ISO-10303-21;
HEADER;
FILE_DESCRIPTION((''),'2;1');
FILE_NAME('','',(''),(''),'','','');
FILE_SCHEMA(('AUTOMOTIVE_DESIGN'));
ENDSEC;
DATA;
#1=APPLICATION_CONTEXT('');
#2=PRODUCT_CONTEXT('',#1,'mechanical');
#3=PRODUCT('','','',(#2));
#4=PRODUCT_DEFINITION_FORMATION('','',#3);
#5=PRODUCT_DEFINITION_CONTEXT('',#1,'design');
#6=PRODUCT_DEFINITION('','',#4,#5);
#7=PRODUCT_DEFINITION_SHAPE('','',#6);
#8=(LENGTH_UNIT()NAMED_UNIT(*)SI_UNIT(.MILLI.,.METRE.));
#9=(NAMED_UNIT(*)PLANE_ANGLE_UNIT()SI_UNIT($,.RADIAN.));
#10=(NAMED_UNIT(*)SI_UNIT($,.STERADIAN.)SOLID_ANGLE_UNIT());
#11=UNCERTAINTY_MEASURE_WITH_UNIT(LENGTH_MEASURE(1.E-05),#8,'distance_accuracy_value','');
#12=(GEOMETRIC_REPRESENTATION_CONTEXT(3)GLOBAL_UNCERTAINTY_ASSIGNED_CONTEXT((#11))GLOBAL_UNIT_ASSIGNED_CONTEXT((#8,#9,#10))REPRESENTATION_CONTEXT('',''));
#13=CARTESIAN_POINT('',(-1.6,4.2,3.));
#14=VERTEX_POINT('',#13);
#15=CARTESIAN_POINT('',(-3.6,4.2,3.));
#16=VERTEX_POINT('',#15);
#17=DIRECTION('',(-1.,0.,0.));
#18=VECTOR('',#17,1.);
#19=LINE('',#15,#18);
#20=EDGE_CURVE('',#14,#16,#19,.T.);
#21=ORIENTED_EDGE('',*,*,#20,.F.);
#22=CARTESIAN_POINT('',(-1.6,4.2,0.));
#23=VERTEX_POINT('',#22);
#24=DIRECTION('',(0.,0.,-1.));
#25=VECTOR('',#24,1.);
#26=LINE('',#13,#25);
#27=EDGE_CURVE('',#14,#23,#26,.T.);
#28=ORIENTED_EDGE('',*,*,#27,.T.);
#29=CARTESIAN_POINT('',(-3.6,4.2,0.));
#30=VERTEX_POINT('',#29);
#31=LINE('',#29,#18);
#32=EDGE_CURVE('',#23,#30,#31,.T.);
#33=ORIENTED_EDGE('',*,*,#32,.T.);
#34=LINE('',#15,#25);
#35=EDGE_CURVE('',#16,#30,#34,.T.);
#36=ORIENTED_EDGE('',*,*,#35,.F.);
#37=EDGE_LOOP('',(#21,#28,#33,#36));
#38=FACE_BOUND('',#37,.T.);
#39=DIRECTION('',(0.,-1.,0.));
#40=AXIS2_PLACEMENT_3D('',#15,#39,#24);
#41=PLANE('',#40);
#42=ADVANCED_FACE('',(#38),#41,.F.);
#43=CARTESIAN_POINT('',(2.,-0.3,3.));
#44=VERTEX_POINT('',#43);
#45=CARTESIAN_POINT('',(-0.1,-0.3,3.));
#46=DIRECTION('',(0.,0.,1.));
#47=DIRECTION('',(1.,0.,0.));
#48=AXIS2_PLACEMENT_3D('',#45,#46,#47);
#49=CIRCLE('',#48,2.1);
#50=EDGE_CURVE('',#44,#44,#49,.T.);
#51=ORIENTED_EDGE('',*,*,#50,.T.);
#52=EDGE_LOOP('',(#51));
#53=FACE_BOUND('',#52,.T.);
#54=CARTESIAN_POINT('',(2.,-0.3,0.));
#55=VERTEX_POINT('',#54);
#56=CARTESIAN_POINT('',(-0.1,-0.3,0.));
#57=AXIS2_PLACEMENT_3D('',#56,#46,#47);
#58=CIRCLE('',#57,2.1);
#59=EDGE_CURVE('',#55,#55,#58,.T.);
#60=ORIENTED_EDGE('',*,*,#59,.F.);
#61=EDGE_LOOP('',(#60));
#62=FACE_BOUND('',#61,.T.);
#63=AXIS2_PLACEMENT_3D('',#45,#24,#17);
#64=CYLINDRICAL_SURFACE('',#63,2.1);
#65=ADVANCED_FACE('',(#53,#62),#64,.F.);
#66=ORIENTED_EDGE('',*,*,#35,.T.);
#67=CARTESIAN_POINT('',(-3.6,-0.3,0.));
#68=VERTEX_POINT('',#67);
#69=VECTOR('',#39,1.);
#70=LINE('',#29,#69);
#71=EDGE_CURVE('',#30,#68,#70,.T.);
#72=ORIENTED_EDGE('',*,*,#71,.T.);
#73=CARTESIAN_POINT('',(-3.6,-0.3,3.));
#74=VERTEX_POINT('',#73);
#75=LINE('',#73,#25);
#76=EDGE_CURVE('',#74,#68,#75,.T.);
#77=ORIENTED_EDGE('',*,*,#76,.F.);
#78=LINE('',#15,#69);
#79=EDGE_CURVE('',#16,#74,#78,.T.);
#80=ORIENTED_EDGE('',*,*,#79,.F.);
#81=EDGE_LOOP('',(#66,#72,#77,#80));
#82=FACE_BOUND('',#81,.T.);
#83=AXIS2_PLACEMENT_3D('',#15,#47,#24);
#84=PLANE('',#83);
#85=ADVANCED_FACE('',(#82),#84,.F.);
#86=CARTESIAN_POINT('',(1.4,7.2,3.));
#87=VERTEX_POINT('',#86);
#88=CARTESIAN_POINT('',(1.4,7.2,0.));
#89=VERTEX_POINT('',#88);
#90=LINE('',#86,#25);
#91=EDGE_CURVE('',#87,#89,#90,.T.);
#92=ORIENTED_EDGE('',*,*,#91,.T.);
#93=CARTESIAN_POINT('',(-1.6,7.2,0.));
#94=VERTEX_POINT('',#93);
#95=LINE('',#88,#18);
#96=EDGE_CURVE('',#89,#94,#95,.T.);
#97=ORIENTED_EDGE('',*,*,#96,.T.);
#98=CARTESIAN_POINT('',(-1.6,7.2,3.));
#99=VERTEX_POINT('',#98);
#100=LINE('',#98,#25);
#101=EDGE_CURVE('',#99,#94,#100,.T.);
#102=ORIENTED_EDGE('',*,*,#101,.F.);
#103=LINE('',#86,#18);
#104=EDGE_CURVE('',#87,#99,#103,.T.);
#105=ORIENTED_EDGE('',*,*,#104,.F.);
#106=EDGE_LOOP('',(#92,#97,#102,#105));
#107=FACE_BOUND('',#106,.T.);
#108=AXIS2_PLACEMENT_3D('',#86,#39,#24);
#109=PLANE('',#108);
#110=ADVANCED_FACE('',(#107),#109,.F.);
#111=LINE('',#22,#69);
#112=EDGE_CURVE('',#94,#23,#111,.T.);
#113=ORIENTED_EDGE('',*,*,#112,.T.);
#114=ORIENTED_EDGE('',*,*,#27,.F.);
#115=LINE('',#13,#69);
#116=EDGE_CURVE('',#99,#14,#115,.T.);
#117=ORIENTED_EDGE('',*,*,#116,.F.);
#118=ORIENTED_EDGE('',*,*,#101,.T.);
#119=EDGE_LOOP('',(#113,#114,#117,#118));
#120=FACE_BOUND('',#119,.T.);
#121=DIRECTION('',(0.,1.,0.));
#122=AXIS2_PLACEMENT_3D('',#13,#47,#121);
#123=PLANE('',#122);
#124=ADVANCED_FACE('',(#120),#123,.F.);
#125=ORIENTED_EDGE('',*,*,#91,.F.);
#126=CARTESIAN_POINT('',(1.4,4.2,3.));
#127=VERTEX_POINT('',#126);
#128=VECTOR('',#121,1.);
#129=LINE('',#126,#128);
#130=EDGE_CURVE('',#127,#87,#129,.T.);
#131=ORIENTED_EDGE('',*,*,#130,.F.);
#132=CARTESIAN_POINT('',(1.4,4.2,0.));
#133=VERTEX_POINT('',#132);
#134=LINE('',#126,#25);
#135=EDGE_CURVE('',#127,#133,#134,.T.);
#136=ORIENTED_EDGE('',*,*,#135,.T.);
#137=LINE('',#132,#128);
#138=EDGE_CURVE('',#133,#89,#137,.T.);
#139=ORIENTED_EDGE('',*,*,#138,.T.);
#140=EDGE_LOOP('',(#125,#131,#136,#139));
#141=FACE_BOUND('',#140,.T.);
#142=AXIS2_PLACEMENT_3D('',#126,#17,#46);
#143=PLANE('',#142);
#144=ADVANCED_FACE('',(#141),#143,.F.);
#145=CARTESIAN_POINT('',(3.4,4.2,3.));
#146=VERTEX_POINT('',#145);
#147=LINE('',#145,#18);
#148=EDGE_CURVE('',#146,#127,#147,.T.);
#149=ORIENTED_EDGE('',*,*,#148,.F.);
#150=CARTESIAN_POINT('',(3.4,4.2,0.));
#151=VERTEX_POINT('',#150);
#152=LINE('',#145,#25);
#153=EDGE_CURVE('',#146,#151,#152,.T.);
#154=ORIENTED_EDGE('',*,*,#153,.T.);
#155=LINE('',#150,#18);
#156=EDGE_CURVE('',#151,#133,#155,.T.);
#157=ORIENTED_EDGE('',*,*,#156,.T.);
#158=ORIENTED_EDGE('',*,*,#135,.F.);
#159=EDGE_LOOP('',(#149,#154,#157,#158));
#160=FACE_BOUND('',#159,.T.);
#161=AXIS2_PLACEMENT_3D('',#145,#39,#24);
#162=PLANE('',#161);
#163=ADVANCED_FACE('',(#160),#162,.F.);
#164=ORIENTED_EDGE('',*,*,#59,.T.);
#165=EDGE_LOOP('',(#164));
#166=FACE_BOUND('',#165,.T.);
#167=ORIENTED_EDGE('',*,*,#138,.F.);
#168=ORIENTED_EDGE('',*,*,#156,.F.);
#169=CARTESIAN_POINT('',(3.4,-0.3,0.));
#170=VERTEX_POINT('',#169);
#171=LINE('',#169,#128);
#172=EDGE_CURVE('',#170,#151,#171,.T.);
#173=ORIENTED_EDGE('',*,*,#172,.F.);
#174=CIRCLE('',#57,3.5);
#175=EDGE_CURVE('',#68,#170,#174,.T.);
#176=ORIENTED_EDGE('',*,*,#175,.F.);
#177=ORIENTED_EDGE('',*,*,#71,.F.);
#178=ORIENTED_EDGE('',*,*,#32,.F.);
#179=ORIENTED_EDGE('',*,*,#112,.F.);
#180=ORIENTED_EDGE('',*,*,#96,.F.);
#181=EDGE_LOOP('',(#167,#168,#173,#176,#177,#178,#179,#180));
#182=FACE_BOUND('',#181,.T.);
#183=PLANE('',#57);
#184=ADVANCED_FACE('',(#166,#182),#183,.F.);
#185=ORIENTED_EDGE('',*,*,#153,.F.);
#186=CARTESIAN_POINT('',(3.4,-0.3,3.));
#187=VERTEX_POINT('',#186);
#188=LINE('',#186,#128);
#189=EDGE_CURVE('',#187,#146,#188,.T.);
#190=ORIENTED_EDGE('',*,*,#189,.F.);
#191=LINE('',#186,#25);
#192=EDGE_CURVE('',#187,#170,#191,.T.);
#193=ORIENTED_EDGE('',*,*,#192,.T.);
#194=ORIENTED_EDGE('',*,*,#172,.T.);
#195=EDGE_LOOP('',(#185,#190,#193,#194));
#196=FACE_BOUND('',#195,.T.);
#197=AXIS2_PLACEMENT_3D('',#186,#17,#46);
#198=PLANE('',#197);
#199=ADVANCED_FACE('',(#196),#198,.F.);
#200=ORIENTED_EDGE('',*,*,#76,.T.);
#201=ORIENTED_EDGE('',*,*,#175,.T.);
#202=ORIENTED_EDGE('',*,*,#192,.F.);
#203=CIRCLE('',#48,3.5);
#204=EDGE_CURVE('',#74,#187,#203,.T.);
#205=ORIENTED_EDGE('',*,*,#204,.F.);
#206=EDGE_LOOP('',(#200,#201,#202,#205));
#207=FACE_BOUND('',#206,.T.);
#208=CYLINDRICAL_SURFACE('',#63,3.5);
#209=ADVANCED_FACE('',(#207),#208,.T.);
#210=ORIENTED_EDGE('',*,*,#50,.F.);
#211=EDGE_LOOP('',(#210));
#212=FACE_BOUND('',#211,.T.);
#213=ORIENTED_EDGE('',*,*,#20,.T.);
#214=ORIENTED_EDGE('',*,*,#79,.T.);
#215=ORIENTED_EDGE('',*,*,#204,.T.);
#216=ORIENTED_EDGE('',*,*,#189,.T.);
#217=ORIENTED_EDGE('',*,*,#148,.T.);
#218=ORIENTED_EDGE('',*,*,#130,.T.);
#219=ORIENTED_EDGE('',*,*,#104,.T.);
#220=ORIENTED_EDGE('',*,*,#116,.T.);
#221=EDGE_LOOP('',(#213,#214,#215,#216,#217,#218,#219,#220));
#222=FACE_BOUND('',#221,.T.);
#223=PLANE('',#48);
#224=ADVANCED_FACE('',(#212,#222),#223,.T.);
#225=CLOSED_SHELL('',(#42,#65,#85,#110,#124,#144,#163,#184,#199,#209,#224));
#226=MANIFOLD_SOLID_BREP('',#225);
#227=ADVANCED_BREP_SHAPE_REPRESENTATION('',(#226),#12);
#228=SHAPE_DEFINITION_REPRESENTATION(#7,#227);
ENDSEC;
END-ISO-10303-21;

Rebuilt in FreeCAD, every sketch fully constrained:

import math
import FreeCAD as App
import Part
import Sketcher

doc = App.newDocument("Part")
body = doc.addObject("PartDesign::Body", "Body")

# Sketch on XY plane
sketch1 = doc.addObject("Sketcher::SketchObject", "Sketch")
body.addObject(sketch1)
sketch1.AttachmentSupport = (doc.XY_Plane, [""])
sketch1.MapMode = "FlatFace"
sketch1.addGeometry([
    Part.LineSegment(App.Vector(3.4, -0.3, 0), App.Vector(3.4, 4.2, 0)),  # 0
    Part.LineSegment(App.Vector(3.4, 4.2, 0), App.Vector(1.4, 4.2, 0)),  # 1
    Part.LineSegment(App.Vector(1.4, 4.2, 0), App.Vector(1.4, 7.2, 0)),  # 2
    Part.LineSegment(App.Vector(1.4, 7.2, 0), App.Vector(-1.6, 7.2, 0)),  # 3
    Part.LineSegment(App.Vector(-1.6, 7.2, 0), App.Vector(-1.6, 4.2, 0)),  # 4
    Part.LineSegment(App.Vector(-1.6, 4.2, 0), App.Vector(-3.6, 4.2, 0)),  # 5
    Part.LineSegment(App.Vector(-3.6, 4.2, 0), App.Vector(-3.6, -0.3, 0)),  # 6
    Part.ArcOfCircle(Part.Circle(App.Vector(-0.1, -0.3, 0), App.Vector(0, 0, 1), 3.5), math.radians(180), math.radians(360)),  # 7
    Part.Circle(App.Vector(-0.1, -0.3, 0), App.Vector(0, 0, 1), 2.1),  # 8
], False)
sketch1.addConstraint([
    Sketcher.Constraint("Coincident", 0, 2, 1, 1),
    Sketcher.Constraint("Coincident", 1, 2, 2, 1),
    Sketcher.Constraint("Coincident", 2, 2, 3, 1),
    Sketcher.Constraint("Coincident", 3, 2, 4, 1),
    Sketcher.Constraint("Coincident", 4, 2, 5, 1),
    Sketcher.Constraint("Coincident", 5, 2, 6, 1),
    Sketcher.Constraint("Tangent", 6, 2, 7, 1),
    Sketcher.Constraint("Tangent", 7, 2, 0, 1),
    Sketcher.Constraint("Vertical", 0),
    Sketcher.Constraint("Horizontal", 1),
    Sketcher.Constraint("Vertical", 2),
    Sketcher.Constraint("Horizontal", 3),
    Sketcher.Constraint("Vertical", 4),
    Sketcher.Constraint("Horizontal", 5),
    Sketcher.Constraint("Vertical", 6),
    Sketcher.Constraint("Coincident", 8, 3, 7, 3),
    Sketcher.Constraint("Horizontal", 1, 2, 4, 2),
    Sketcher.Constraint("Equal", 1, 5),
    Sketcher.Constraint("Equal", 3, 2),
    Sketcher.Constraint("Diameter", 8, 4.2),
    Sketcher.Constraint("Radius", 7, 3.5),
    Sketcher.Constraint("DistanceX", 1, 2, 1, 1, 2.0),
    Sketcher.Constraint("DistanceY", 0, 1, 0, 2, 4.5),
    Sketcher.Constraint("DistanceX", 7, 3, -1, 1, 0.1),
    Sketcher.Constraint("DistanceY", 7, 3, -1, 1, 0.3),
])
pad1 = doc.addObject("PartDesign::Pad", "Pad")
body.addObject(pad1)
pad1.Profile = sketch1
pad1.Length = 3

doc.recompute()
